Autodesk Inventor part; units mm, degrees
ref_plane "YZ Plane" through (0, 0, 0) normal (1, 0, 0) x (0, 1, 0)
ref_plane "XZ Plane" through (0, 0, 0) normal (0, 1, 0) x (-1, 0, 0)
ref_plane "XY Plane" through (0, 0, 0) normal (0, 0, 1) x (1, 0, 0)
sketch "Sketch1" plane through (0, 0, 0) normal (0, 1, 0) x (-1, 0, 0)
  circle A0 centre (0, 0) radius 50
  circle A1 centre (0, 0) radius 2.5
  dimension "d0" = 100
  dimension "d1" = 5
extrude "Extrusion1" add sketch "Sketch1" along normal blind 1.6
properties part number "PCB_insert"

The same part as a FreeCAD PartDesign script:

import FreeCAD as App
import Part
import Sketcher

V = App.Vector
Q = App.Units.Quantity

doc = App.newDocument("Part")
body = doc.addObject("PartDesign::Body", "Body")

sketch1 = doc.addObject("Sketcher::SketchObject", "Sketch")
body.addObject(sketch1)
sketch1.AttachmentSupport = (doc.XZ_Plane, [""])
sketch1.MapMode = "FlatFace"
sketch1.addGeometry(Part.Circle(V(0, 0, 0), V(0, 0, 1), 50), False)
sketch1.addGeometry(Part.Circle(V(0, 0, 0), V(0, 0, 1), 2.5), False)
sketch1.addConstraint(Sketcher.Constraint("Coincident", 0, 3, -1, 1))
sketch1.addConstraint(Sketcher.Constraint("Coincident", 1, 3, -1, 1))
sketch1.addConstraint(Sketcher.Constraint("Diameter", 0, Q("3.937 in")))
sketch1.addConstraint(Sketcher.Constraint("Diameter", 1, Q("5 mm")))
pad1 = doc.addObject("PartDesign::Pad", "Pad")
body.addObject(pad1)
pad1.Profile = sketch1
pad1.Length = Q("0.0629921 in")
pad1.Reversed = True

doc.recompute()
